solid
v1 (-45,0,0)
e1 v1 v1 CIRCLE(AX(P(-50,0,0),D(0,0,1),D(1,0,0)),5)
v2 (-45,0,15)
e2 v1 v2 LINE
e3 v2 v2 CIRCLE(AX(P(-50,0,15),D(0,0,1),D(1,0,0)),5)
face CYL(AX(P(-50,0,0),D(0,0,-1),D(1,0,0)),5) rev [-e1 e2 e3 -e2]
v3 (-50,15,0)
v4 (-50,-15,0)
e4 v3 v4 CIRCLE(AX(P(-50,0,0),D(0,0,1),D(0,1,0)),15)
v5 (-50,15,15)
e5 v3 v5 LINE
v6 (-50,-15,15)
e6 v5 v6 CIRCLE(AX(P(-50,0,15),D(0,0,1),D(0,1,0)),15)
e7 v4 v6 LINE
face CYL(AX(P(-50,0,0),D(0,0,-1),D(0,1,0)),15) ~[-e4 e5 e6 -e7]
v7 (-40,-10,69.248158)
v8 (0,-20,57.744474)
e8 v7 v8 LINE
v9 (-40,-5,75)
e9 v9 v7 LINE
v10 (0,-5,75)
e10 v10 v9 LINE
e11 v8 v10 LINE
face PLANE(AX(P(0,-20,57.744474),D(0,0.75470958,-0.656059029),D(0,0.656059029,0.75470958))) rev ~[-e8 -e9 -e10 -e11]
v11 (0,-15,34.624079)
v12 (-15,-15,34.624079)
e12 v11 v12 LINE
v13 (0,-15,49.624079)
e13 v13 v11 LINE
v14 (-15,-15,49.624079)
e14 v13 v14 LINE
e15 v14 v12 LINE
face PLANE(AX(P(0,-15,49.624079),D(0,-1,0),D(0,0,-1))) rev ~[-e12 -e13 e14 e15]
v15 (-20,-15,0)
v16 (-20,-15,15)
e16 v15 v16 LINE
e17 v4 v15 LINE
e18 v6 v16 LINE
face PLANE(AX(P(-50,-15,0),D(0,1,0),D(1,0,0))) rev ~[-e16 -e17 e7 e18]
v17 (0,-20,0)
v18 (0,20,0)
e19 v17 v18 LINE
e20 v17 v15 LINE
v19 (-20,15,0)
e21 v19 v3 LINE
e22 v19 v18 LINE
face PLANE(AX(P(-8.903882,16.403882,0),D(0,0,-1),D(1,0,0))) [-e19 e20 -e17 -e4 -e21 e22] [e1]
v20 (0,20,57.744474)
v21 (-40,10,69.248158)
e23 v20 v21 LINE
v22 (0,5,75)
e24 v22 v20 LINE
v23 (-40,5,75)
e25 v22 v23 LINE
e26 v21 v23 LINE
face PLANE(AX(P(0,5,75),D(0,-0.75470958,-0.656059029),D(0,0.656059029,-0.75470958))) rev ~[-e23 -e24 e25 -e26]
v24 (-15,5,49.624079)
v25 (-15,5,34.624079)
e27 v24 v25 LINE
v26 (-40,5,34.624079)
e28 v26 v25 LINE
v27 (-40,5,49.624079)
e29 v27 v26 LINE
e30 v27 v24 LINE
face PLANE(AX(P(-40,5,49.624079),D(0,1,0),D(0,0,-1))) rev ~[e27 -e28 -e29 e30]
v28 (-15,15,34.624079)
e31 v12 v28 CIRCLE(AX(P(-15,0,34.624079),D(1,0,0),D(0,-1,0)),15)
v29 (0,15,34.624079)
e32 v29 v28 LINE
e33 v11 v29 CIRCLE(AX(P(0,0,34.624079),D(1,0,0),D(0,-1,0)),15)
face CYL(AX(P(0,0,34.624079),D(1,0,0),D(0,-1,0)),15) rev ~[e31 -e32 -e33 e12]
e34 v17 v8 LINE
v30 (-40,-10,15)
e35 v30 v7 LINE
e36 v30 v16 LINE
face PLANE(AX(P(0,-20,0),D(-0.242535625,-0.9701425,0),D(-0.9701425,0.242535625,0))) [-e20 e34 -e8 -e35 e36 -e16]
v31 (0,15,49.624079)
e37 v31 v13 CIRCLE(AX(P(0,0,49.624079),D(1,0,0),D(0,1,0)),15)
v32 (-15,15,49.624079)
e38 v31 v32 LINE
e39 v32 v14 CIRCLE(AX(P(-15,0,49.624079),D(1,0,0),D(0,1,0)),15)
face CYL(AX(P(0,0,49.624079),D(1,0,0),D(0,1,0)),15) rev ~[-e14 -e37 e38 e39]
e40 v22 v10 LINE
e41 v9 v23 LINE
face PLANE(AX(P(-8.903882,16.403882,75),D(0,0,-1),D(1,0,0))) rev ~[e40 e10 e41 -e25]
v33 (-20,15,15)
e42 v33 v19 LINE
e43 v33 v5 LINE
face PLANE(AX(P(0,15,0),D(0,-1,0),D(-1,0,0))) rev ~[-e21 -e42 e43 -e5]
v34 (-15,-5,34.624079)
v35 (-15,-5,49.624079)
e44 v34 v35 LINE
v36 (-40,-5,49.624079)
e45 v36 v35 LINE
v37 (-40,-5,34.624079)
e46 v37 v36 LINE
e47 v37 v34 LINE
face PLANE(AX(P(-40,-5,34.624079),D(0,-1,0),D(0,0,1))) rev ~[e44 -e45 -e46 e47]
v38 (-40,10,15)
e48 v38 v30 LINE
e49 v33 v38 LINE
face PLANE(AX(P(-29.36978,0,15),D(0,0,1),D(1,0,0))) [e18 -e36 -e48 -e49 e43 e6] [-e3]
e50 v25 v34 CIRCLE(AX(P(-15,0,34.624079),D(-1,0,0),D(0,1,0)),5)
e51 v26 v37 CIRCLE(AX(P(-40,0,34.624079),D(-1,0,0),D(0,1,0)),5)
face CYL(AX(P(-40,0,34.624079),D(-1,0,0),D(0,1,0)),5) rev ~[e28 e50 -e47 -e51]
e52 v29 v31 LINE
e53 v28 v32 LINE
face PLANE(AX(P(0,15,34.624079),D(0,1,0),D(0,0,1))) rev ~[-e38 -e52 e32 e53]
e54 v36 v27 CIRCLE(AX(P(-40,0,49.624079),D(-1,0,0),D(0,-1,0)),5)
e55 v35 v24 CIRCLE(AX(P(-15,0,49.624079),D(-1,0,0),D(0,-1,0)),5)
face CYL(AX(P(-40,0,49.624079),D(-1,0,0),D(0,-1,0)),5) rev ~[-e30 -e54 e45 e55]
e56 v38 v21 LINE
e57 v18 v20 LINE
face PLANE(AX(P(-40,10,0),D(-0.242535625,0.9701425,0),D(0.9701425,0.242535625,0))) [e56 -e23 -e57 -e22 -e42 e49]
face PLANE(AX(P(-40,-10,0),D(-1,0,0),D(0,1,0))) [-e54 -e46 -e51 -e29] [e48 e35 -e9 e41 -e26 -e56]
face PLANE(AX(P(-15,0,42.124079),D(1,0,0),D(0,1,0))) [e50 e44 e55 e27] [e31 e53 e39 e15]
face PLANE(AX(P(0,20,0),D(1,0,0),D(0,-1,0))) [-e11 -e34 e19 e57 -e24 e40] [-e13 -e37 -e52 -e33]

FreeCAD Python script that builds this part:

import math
import FreeCAD as App
import Part
import Sketcher
from FreeCAD import Vector
Q = App.Units.Quantity


def add_polygon(sketch, points):
    """Adds a closed chain of lines whose ends are joined by coincident constraints."""
    first, n = sketch.GeometryCount, len(points)
    for a, b in zip(points, points[1:] + points[:1]):
        sketch.addGeometry(Part.LineSegment(App.Vector(*a, 0), App.Vector(*b, 0)), False)
    for i in range(n):
        sketch.addConstraint(Sketcher.Constraint("Coincident", first + i, 2, first + (i + 1) % n, 1))

doc = App.newDocument("Part")
body = doc.addObject("PartDesign::Body", "Body")

# Sketch on XY plane
sketch1 = body.newObject("Sketcher::SketchObject", "Sketch")
sketch1.AttachmentSupport = (doc.getObject("XY_Plane"), [""])
sketch1.MapMode = "FlatFace"
sketch1.addGeometry([
    Part.LineSegment(Vector(0, 15, 0), Vector(-50, 15, 0)),  # 0
    Part.ArcOfCircle(Part.Circle(Vector(-50, 0, 0), Vector(0, 0, 1), 15), math.radians(90), math.radians(270)),  # 1
    Part.LineSegment(Vector(-50, -15, 0), Vector(0, -15, 0)),  # 2
    Part.LineSegment(Vector(0, -15, 0), Vector(0, 15, 0)),  # 3
    Part.Circle(Vector(-50, 0, 0), Vector(0, 0, 1), 5),  # 4
], False)
sketch1.addConstraint([
    Sketcher.Constraint("Tangent", 0, 2, 1, 1),
    Sketcher.Constraint("Tangent", 1, 2, 2, 1),
    Sketcher.Constraint("Coincident", 2, 2, 3, 1),
    Sketcher.Constraint("Coincident", 3, 2, 0, 1),
    Sketcher.Constraint("Horizontal", 0),
    Sketcher.Constraint("Horizontal", 2),
    Sketcher.Constraint("Vertical", 3),
    Sketcher.Constraint("Coincident", 4, 3, 1, 3),
    Sketcher.Constraint("Symmetric", 2, 2, 3, 2, -1, 1),
    Sketcher.Constraint("Diameter", 4, 10.0),
    Sketcher.Constraint("Radius", 1, 15.0),
    Sketcher.Constraint("DistanceX", 0, 2, 0, 1, 50.0),
])
pad1 = body.newObject("PartDesign::Pad", "Pad")
pad1.Profile = sketch1
pad1.Length = 15

# Sketch on XY plane
sketch2 = body.newObject("Sketcher::SketchObject", "Sketch001")
sketch2.AttachmentSupport = (doc.getObject("XY_Plane"), [""])
sketch2.MapMode = "FlatFace"
add_polygon(sketch2, [(0, 20), (0, -20), (-40, -10), (-40, 10)])  # lines 0-3
sketch2.addConstraint([
    Sketcher.Constraint("Vertical", 0),
    Sketcher.Constraint("Vertical", 2),
    Sketcher.Constraint("Symmetric", 0, 2, 3, 2, -1, 1),
    Sketcher.Constraint("Equal", 1, 3),
    Sketcher.Constraint("DistanceY", 0, 2, 0, 1, 40.0),
    Sketcher.Constraint("DistanceY", 2, 1, 2, 2, 20.0),
    Sketcher.Constraint("DistanceX", 1, 2, -1, 1, 40.0),
])
pad2 = body.newObject("PartDesign::Pad", "Pad001")
pad2.Profile = sketch2
pad2.Length = 75

# Sketch on YZ plane
sketch3 = body.newObject("Sketcher::SketchObject", "Sketch002")
sketch3.AttachmentSupport = (doc.getObject("YZ_Plane"), [""])
sketch3.MapMode = "FlatFace"
add_polygon(sketch3, [(34.857165, 75), (5, 75), (20, 57.744474), (25.744539, 51.136138)])  # lines 0-3
add_polygon(sketch3, [(-20, 57.744474), (-5, 75), (-34.857165, 75), (-25.744539, 51.136138)])  # lines 4-7
sketch3.addConstraint([
    Sketcher.Constraint("Horizontal", 0),
    Sketcher.Constraint("Horizontal", 5),
    Sketcher.Constraint("Symmetric", 0, 2, 4, 2, -2),
    Sketcher.Constraint("Symmetric", 2, 2, 6, 2, -2),
    Sketcher.Constraint("Symmetric", 1, 2, 7, 2, -2),
    Sketcher.Constraint("Parallel", 1, 2),
    Sketcher.Constraint("Equal", 0, 5),
    Sketcher.Constraint("Angle", 1, Q("-49 deg")),
    Sketcher.Constraint("DistanceX", -1, 1, 0, 2, 5.0),
    Sketcher.Constraint("DistanceY", -1, 1, 0, 2, 75.0),
    Sketcher.Constraint("DistanceX", -1, 1, 1, 2, 20.0),
    Sketcher.Constraint("Distance", 2, 8.756131),
    Sketcher.Constraint("DistanceX", 0, 2, 0, 1, 29.857165),
])
pocket1 = body.newObject("PartDesign::Pocket", "Pocket")
pocket1.Profile = sketch3
pocket1.Length = 80

# Sketch on YZ plane
sketch4 = body.newObject("Sketcher::SketchObject", "Sketch003")
sketch4.AttachmentSupport = (doc.getObject("YZ_Plane"), [""])
sketch4.MapMode = "FlatFace"
sketch4.AttachmentOffset = App.Placement(Vector(0, 0, -40), App.Rotation())
sketch4.addGeometry([
    Part.ArcOfCircle(Part.Circle(Vector(0, 49.624079, 0), Vector(0, 0, 1), 5), math.radians(0), math.radians(180)),
    Part.LineSegment(Vector(5, 49.624079, 0), Vector(5, 34.624079, 0)),
    Part.ArcOfCircle(Part.Circle(Vector(0, 34.624079, 0), Vector(0, 0, 1), 5), math.radians(180), math.radians(360)),
    Part.LineSegment(Vector(-5, 34.624079, 0), Vector(-5, 49.624079, 0)),
], False)
sketch4.addConstraint([
    Sketcher.Constraint("Tangent", 0, 1, 1, 1),
    Sketcher.Constraint("Tangent", 1, 2, 2, 2),
    Sketcher.Constraint("Tangent", 2, 1, 3, 1),
    Sketcher.Constraint("Tangent", 3, 2, 0, 2),
    Sketcher.Constraint("Vertical", 1),
    Sketcher.Constraint("Vertical", 3),
    Sketcher.Constraint("PointOnObject", 0, 3, -2),
    Sketcher.Constraint("Radius", 0, 5.0),
    Sketcher.Constraint("DistanceY", 1, 2, 1, 1, 15.0),
    Sketcher.Constraint("DistanceY", -1, 1, 0, 3, 49.624079),
])
pocket2 = body.newObject("PartDesign::Pocket", "Pocket001")
pocket2.Profile = sketch4
pocket2.Length = 50
pocket2.Reversed = True

# Sketch on YZ plane
sketch5 = body.newObject("Sketcher::SketchObject", "Sketch004")
sketch5.AttachmentSupport = (doc.getObject("YZ_Plane"), [""])
sketch5.MapMode = "FlatFace"
sketch5.addGeometry([
    Part.LineSegment(Vector(15, 34.624079, 0), Vector(15, 49.624079, 0)),  # 0
    Part.ArcOfCircle(Part.Circle(Vector(0, 49.624079, 0), Vector(0, 0, 1), 15), math.radians(0), math.radians(180)),  # 1
    Part.LineSegment(Vector(-15, 49.624079, 0), Vector(-15, 34.624079, 0)),  # 2
    Part.ArcOfCircle(Part.Circle(Vector(0, 34.624079, 0), Vector(0, 0, 1), 15), math.radians(180), math.radians(360)),  # 3
    Part.LineSegment(Vector(5, 49.624079, 0), Vector(5, 34.624079, 0)),  # 4
    Part.ArcOfCircle(Part.Circle(Vector(0, 34.624079, 0), Vector(0, 0, 1), 5), math.radians(180), math.radians(360)),  # 5
    Part.LineSegment(Vector(-5, 34.624079, 0), Vector(-5, 49.624079, 0)),  # 6
    Part.ArcOfCircle(Part.Circle(Vector(0, 49.624079, 0), Vector(0, 0, 1), 5), math.radians(0), math.radians(180)),  # 7
], False)
sketch5.addConstraint([
    Sketcher.Constraint("Tangent", 0, 2, 1, 1),
    Sketcher.Constraint("Tangent", 1, 2, 2, 1),
    Sketcher.Constraint("Tangent", 2, 2, 3, 1),
    Sketcher.Constraint("Tangent", 3, 2, 0, 1),
    Sketcher.Constraint("Tangent", 4, 2, 5, 2),
    Sketcher.Constraint("Tangent", 5, 1, 6, 1),
    Sketcher.Constraint("Tangent", 6, 2, 7, 2),
    Sketcher.Constraint("Tangent", 7, 1, 4, 1),
    Sketcher.Constraint("Vertical", 0),
    Sketcher.Constraint("Vertical", 2),
    Sketcher.Constraint("Vertical", 4),
    Sketcher.Constraint("Vertical", 6),
    Sketcher.Constraint("Coincident", 5, 3, 3, 3),
    Sketcher.Constraint("PointOnObject", 1, 3, -2),
    Sketcher.Constraint("Horizontal", 7, 3, 0, 2),
    Sketcher.Constraint("Radius", 1, 15.0),
    Sketcher.Constraint("Radius", 5, 5.0),
    Sketcher.Constraint("DistanceY", 0, 1, 0, 2, 15.0),
    Sketcher.Constraint("DistanceY", -1, 1, 1, 3, 49.624079),
])
pocket3 = body.newObject("PartDesign::Pocket", "Pocket002")
pocket3.Profile = sketch5
pocket3.Length = 15

doc.recompute()
